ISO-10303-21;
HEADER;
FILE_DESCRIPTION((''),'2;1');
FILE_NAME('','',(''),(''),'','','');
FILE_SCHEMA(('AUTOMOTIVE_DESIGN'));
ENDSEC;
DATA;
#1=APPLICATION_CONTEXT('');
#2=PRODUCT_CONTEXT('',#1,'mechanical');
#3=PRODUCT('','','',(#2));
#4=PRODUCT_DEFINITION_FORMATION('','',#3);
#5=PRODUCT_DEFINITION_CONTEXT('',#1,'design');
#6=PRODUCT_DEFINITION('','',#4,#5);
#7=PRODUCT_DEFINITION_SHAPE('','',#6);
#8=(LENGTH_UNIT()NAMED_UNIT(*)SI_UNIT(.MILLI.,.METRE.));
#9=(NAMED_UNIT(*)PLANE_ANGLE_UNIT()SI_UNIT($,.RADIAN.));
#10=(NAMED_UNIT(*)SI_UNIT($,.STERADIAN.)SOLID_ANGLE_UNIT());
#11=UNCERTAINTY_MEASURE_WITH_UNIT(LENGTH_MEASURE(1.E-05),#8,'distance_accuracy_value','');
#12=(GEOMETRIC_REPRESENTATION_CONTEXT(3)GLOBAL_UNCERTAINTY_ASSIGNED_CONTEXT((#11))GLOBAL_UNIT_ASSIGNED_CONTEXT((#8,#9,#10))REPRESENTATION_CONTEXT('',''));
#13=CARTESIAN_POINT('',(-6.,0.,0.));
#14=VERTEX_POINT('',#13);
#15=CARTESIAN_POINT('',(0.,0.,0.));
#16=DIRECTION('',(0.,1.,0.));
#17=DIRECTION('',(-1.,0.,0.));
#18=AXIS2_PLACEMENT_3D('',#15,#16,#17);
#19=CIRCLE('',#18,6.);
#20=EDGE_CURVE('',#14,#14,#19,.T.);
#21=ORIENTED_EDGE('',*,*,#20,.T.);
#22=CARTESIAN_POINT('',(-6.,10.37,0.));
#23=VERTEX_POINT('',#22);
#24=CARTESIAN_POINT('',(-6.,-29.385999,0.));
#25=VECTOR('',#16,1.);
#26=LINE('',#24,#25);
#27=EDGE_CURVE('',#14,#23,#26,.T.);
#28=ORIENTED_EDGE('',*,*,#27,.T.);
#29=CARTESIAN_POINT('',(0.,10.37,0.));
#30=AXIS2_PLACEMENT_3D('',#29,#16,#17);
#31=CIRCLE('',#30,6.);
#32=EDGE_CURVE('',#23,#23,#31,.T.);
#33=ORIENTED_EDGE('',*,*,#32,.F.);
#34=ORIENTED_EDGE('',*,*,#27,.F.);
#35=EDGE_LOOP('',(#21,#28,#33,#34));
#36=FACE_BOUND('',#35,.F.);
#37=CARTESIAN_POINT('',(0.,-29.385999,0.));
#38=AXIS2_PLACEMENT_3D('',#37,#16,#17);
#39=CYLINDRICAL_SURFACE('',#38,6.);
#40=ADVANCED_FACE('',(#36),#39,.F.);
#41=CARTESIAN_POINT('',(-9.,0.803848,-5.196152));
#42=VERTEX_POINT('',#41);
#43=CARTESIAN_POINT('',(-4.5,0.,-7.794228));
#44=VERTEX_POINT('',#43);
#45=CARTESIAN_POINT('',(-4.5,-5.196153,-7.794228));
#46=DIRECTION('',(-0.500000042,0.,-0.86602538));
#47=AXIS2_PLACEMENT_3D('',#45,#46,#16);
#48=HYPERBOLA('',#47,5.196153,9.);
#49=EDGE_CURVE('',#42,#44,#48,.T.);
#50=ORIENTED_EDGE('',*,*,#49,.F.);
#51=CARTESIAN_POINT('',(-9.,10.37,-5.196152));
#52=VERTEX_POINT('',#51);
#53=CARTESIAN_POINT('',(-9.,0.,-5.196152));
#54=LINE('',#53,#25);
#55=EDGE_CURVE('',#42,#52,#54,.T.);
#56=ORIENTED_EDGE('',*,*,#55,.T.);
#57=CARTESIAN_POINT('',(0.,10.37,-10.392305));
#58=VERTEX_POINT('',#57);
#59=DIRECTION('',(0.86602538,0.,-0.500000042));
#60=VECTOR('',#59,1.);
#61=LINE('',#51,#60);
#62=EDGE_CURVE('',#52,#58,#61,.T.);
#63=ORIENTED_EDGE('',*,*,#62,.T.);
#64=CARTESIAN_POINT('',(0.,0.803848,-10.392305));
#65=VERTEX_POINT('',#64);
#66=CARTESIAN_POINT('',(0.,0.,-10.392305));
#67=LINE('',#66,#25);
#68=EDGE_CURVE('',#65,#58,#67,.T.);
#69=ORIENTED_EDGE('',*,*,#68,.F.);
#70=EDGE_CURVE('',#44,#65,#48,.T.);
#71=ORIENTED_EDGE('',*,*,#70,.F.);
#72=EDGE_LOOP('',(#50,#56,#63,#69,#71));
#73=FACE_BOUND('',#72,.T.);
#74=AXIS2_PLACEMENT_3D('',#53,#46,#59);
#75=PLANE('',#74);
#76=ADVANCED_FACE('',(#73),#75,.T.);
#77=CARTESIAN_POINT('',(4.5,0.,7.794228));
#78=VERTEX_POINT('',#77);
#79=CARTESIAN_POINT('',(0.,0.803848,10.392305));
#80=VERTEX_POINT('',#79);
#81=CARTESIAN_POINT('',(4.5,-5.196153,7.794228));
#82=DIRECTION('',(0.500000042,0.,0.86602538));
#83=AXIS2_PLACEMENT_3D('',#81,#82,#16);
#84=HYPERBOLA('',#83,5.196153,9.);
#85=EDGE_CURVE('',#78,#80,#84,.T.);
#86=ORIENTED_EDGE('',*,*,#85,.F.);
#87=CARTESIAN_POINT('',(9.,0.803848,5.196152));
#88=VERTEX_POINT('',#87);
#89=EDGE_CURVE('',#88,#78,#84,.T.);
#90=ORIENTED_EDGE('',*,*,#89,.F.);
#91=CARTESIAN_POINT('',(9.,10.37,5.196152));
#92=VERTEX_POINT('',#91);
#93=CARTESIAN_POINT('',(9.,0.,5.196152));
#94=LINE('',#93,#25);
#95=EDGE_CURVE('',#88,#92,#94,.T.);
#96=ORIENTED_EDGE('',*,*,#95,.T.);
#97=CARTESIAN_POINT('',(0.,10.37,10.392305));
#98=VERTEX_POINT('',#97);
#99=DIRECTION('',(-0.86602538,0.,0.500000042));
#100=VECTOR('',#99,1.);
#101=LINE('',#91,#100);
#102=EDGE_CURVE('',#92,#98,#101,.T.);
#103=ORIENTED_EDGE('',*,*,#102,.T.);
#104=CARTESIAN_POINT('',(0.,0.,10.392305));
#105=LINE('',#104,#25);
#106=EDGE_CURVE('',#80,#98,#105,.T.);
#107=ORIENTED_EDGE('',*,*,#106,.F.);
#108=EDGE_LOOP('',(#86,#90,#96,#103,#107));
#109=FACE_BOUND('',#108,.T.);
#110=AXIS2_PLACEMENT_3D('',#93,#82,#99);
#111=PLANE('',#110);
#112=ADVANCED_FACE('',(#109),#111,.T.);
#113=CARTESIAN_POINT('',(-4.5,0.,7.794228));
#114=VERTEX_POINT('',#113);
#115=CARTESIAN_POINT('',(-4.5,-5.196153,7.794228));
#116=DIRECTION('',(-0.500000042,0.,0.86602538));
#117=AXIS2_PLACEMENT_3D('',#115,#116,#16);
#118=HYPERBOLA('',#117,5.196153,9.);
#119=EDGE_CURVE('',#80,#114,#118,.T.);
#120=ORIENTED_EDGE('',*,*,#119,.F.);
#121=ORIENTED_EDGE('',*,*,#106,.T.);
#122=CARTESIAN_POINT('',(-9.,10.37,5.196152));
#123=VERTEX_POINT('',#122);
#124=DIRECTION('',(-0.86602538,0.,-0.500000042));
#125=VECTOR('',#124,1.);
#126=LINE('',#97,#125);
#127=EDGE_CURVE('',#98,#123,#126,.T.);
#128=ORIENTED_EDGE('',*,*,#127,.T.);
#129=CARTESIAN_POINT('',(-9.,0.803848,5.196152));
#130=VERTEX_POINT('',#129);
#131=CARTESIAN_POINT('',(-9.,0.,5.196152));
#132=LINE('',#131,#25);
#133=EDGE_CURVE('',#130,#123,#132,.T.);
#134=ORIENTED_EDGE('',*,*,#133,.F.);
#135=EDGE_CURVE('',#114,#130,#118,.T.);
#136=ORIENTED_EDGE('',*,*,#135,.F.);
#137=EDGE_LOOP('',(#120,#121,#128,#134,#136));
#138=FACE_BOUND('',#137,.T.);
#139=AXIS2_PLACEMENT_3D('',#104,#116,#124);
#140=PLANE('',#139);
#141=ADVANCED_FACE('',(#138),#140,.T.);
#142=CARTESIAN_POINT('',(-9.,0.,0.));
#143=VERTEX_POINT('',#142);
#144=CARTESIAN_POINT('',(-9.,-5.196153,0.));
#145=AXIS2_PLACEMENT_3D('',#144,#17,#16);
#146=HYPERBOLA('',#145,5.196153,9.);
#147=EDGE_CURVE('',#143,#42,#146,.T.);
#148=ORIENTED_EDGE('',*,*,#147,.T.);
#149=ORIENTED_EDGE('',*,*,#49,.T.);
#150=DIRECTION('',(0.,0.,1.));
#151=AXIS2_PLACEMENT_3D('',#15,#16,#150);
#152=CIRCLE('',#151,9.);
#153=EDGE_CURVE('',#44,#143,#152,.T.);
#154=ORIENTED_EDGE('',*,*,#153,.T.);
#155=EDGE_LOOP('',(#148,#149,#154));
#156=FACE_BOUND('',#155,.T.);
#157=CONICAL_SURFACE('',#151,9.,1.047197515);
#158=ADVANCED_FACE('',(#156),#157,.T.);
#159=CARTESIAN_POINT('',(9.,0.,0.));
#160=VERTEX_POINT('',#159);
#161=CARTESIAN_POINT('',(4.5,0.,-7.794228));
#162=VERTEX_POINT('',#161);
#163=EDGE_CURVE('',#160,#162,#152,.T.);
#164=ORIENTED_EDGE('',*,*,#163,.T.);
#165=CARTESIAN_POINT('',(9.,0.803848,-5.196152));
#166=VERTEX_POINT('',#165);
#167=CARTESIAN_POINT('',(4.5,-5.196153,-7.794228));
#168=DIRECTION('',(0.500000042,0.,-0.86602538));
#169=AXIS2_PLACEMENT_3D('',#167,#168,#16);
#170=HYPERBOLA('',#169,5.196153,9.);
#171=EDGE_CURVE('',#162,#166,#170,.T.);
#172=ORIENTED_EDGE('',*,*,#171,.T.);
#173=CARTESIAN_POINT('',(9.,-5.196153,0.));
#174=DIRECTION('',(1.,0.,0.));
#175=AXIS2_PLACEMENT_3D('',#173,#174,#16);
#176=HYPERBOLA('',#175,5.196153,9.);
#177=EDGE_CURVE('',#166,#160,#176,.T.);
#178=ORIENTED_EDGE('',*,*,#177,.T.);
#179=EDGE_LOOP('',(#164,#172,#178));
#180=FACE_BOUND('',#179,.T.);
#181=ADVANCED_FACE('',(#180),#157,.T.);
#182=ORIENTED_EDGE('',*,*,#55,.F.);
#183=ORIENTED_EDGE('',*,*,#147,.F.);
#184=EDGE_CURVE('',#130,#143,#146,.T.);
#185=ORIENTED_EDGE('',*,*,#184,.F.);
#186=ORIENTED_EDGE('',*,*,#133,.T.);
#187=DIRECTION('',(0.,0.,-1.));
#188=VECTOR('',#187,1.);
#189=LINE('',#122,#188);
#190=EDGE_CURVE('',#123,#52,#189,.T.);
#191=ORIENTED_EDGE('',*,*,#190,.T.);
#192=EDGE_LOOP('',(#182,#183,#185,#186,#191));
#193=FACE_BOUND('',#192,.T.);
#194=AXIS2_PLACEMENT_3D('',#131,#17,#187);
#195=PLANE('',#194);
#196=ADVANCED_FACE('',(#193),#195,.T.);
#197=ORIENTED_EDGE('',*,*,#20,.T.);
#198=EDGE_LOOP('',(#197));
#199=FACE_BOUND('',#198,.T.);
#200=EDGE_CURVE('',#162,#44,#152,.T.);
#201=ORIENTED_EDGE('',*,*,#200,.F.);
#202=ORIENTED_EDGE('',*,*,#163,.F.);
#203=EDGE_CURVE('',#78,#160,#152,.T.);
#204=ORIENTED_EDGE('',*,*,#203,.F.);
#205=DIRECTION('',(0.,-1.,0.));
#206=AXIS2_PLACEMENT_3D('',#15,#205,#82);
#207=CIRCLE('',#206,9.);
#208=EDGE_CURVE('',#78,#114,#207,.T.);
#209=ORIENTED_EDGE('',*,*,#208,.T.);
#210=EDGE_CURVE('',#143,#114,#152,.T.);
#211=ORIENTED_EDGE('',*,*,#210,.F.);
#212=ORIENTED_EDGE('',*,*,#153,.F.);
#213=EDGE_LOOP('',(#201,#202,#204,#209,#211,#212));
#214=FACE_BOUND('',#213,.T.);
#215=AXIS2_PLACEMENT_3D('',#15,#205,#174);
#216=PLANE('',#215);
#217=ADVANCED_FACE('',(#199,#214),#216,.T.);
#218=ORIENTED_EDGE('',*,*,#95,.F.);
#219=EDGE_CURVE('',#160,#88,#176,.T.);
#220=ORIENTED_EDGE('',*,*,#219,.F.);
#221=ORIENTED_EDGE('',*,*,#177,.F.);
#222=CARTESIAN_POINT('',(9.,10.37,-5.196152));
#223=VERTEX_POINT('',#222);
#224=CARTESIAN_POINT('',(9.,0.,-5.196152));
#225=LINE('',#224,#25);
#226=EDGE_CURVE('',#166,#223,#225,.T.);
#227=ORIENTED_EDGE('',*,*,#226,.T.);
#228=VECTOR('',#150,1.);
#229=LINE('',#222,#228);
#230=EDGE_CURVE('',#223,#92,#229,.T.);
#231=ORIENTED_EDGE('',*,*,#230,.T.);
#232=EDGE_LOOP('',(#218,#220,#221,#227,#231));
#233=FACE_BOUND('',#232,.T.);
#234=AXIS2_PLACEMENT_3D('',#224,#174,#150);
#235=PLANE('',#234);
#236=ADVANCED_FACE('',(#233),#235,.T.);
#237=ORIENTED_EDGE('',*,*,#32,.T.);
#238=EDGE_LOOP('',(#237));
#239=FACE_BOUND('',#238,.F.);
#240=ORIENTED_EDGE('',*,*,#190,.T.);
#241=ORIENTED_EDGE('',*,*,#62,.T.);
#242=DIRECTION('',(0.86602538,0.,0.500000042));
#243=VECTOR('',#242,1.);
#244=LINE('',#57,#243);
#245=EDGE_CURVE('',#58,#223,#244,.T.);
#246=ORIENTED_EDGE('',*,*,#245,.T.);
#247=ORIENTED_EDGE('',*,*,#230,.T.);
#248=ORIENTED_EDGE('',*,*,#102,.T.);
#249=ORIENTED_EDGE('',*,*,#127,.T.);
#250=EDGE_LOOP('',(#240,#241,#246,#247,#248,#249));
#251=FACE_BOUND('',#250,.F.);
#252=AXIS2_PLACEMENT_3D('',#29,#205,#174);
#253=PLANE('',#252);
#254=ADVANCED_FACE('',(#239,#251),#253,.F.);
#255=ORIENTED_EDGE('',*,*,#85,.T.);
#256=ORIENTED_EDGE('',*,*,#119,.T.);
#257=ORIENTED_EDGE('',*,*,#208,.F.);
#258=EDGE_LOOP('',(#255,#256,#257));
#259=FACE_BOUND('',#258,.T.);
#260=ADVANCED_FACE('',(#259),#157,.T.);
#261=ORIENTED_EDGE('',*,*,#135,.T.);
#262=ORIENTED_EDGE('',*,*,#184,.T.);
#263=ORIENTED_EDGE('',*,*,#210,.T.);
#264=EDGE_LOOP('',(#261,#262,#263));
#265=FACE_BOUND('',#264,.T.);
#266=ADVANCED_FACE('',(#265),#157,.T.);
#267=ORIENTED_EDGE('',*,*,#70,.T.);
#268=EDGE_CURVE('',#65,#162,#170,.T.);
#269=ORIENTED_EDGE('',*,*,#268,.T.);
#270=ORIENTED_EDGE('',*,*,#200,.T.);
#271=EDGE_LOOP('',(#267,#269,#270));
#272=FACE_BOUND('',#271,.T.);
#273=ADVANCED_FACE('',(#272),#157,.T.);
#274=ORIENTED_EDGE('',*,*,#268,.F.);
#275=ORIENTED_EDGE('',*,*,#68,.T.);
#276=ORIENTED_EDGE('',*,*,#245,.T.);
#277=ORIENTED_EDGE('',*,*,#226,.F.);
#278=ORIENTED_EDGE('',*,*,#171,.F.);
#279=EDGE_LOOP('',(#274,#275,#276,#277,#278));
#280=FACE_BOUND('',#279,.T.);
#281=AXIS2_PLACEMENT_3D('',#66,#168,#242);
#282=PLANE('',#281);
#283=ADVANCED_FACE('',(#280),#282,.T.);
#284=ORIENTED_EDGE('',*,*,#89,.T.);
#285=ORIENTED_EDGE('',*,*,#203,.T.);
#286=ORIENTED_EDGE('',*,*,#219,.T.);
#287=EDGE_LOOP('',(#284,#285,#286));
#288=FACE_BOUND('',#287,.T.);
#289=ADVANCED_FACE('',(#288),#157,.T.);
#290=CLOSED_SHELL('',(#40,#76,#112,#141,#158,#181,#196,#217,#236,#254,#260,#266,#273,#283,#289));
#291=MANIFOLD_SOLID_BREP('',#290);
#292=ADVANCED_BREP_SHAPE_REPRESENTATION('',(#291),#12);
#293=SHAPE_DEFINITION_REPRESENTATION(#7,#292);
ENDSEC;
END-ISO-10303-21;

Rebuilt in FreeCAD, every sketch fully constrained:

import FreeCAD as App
import Part
import Sketcher
Q = App.Units.Quantity

doc = App.newDocument("Part")
params = doc.addObject("Spreadsheet::Sheet", "Params")
for row, (alias, value) in enumerate([
    ("pad1_length", "10.37 mm"),
    ("groove_angle", "360 deg"),
    ("sketch3_diameter", "12 mm"),
    ("hole_diameter", "12 mm"),
], start=1):
    params.set(f"A{row}", alias)
    params.set(f"B{row}", "=" + value)
    params.setAlias(f"B{row}", alias)

body = doc.addObject("PartDesign::Body", "Body")

sketch1 = body.newObject("Sketcher::SketchObject", "Sketch")
sketch1.AttachmentSupport = (doc.getObject("XZ_Plane"), [""])
sketch1.MapMode = "FlatFace"
sketch1.addGeometry(Part.LineSegment(App.Vector(9, -5.196152, 0), App.Vector(9, 5.196152, 0)), False)
sketch1.addGeometry(Part.LineSegment(App.Vector(9, 5.196152, 0), App.Vector(0, 10.392305, 0)), False)
sketch1.addGeometry(Part.LineSegment(App.Vector(0, 10.392305, 0), App.Vector(-9, 5.196152, 0)), False)
sketch1.addGeometry(Part.LineSegment(App.Vector(-9, 5.196152, 0), App.Vector(-9, -5.196152, 0)), False)
sketch1.addGeometry(Part.LineSegment(App.Vector(-9, -5.196152, 0), App.Vector(0, -10.392305, 0)), False)
sketch1.addGeometry(Part.LineSegment(App.Vector(0, -10.392305, 0), App.Vector(9, -5.196152, 0)), False)
sketch1.addConstraint(Sketcher.Constraint("Coincident", 0, 2, 1, 1))
sketch1.addConstraint(Sketcher.Constraint("Coincident", 1, 2, 2, 1))
sketch1.addConstraint(Sketcher.Constraint("Coincident", 2, 2, 3, 1))
sketch1.addConstraint(Sketcher.Constraint("Coincident", 3, 2, 4, 1))
sketch1.addConstraint(Sketcher.Constraint("Coincident", 4, 2, 5, 1))
sketch1.addConstraint(Sketcher.Constraint("Coincident", 5, 2, 0, 1))
sketch1.addConstraint(Sketcher.Constraint("Vertical", 0))
sketch1.addConstraint(Sketcher.Constraint("Vertical", 3))
sketch1.addConstraint(Sketcher.Constraint("Symmetric", 0, 2, 3, 2, -1, 1))
sketch1.addConstraint(Sketcher.Constraint("Symmetric", 1, 2, 4, 2, -1, 1))
sketch1.addConstraint(Sketcher.Constraint("PointOnObject", 1, 2, -2))
sketch1.addConstraint(Sketcher.Constraint("Parallel", 2, 5))
sketch1.addConstraint(Sketcher.Constraint("Horizontal", 0, 2, 2, 2))
sketch1.addConstraint(Sketcher.Constraint("Angle", 1, Q("149.999997 deg")))
sketch1.addConstraint(Sketcher.Constraint("DistanceX", -1, 1, 0, 2, 9.0))
sketch1.addConstraint(Sketcher.Constraint("DistanceY", 0, 1, 0, 2, 10.392304))
pad1 = body.newObject("PartDesign::Pad", "Pad")
pad1.Profile = sketch1
pad1.setExpression("Length", "Params.pad1_length")
pad1.Reversed = True

sketch2 = body.newObject("Sketcher::SketchObject", "Sketch001")
sketch2.AttachmentSupport = (doc.getObject("YZ_Plane"), [""])
sketch2.MapMode = "FlatFace"
sketch2.addGeometry(Part.LineSegment(App.Vector(0, 14.392305, 0), App.Vector(0, 9, 0)), False)
sketch2.addGeometry(Part.LineSegment(App.Vector(0, 9, 0), App.Vector(3.113249, 14.392305, 0)), False)
sketch2.addGeometry(Part.LineSegment(App.Vector(3.113249, 14.392305, 0), App.Vector(0, 14.392305, 0)), False)
sketch2.addConstraint(Sketcher.Constraint("Coincident", 0, 2, 1, 1))
sketch2.addConstraint(Sketcher.Constraint("Coincident", 1, 2, 2, 1))
sketch2.addConstraint(Sketcher.Constraint("Coincident", 2, 2, 0, 1))
sketch2.addConstraint(Sketcher.Constraint("Vertical", 0))
sketch2.addConstraint(Sketcher.Constraint("Horizontal", 2))
sketch2.addConstraint(Sketcher.Constraint("PointOnObject", 0, 2, -2))
sketch2.addConstraint(Sketcher.Constraint("Angle", 1, Q("59.999998 deg")))
sketch2.addConstraint(Sketcher.Constraint("DistanceY", -1, 1, 0, 2, 9.0))
sketch2.addConstraint(Sketcher.Constraint("DistanceX", 2, 2, 2, 1, 3.113249))
groove = body.newObject("PartDesign::Groove", "Groove")
groove.Profile = sketch2
groove.ReferenceAxis = (sketch2, ["H_Axis"])
groove.setExpression("Angle", "Params.groove_angle")

sketch3 = body.newObject("Sketcher::SketchObject", "Sketch002")
sketch3.AttachmentSupport = (doc.getObject("XZ_Plane"), [""])
sketch3.MapMode = "FlatFace"
sketch3.addGeometry(Part.Circle(App.Vector(0, 0, 0), App.Vector(0, 0, 1), 6), False)
sketch3.addConstraint(Sketcher.Constraint("Coincident", 0, 3, -1, 1))
sketch3.addConstraint(Sketcher.Constraint("Diameter", 0, 12.0))
sketch3.setExpression("Constraints[1]", "Params.sketch3_diameter")
doc.recompute()
hole = body.newObject("PartDesign::Hole", "Hole")
hole.Profile = sketch3
hole.ThreadType = "None"
hole.setExpression("Diameter", "Params.hole_diameter")
hole.DepthType = "ThroughAll"

doc.recompute()
